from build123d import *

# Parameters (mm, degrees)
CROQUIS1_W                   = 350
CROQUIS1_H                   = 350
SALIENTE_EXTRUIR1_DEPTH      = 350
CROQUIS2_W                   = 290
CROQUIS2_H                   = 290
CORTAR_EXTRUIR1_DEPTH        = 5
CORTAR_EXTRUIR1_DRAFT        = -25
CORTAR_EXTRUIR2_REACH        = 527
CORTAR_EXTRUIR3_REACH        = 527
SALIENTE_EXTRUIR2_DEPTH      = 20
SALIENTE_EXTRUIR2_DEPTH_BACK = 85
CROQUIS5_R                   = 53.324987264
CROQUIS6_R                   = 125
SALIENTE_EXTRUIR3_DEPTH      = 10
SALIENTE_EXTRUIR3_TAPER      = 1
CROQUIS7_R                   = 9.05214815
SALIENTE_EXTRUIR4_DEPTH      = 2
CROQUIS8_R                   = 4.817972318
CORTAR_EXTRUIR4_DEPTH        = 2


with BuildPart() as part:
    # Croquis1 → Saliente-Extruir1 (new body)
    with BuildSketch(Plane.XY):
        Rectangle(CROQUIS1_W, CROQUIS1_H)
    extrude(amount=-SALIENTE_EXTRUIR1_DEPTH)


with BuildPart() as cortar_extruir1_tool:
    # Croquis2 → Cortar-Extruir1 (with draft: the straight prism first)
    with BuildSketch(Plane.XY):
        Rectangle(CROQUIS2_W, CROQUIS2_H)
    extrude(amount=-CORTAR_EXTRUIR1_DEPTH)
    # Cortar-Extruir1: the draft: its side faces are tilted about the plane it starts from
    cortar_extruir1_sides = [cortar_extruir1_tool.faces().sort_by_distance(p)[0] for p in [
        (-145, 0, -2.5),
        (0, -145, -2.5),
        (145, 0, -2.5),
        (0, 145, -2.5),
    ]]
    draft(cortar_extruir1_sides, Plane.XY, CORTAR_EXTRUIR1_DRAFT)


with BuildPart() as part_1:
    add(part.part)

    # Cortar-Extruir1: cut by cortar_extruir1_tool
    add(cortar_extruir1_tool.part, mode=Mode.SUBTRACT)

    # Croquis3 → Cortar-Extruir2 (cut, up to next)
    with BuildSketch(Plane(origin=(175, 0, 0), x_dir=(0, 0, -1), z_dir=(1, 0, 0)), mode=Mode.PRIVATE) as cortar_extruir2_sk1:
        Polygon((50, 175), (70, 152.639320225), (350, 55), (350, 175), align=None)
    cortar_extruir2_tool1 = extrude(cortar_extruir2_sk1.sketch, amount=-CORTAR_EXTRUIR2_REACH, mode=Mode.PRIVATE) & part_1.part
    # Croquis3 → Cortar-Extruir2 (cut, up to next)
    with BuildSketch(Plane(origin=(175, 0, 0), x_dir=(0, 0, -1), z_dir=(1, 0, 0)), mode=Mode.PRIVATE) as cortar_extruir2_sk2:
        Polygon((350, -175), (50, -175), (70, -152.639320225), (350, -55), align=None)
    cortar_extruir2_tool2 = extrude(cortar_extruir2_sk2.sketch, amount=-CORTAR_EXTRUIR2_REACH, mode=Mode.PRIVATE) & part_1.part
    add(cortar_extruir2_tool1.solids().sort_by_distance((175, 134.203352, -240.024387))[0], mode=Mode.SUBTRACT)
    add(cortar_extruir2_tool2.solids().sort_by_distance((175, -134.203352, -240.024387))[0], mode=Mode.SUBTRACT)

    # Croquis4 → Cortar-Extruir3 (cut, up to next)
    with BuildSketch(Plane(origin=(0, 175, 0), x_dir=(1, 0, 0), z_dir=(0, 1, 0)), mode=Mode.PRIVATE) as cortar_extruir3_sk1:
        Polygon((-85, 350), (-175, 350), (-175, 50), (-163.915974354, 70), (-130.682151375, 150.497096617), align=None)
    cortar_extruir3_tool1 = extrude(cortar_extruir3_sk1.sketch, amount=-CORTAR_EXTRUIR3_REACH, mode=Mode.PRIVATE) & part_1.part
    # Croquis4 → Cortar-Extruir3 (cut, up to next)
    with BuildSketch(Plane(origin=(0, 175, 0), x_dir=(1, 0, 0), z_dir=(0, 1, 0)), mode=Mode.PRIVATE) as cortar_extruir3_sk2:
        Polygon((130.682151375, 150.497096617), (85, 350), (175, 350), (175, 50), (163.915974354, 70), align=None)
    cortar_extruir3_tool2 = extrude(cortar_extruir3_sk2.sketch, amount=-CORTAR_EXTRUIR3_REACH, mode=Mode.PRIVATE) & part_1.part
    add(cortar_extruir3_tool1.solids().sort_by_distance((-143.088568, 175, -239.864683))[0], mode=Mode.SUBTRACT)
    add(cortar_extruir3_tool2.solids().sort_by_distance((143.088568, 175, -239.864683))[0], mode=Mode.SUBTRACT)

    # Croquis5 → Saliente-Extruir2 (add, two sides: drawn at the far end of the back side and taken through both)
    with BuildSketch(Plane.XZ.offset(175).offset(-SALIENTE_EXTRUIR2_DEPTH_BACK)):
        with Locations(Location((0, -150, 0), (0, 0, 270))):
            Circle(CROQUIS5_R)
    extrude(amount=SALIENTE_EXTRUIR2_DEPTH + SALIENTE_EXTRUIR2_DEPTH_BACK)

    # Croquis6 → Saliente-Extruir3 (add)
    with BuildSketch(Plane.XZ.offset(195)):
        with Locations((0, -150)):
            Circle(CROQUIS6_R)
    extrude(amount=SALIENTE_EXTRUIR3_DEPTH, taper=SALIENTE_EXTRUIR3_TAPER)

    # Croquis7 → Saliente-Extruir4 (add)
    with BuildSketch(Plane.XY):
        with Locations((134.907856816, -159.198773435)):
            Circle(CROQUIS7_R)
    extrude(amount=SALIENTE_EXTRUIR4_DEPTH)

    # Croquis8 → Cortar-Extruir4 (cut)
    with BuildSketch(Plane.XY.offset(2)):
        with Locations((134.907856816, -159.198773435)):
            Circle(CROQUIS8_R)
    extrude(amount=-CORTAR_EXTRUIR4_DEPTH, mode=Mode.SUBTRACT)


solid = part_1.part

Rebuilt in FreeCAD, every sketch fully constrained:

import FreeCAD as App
import Part
import Sketcher

V = App.Vector
Q = App.Units.Quantity


def faces_at(feature, points):
    """Names of the faces that lie closest to the given points."""
    faces = feature.Shape.Faces
    near = lambda p: min(range(len(faces)), key=lambda i: faces[i].distToShape(Part.Vertex(*p))[0])
    return sorted({f"Face{near(p) + 1}" for p in points})


def add_polygon(sketch, points):
    """Adds a closed chain of lines whose ends are joined by coincident constraints."""
    first, n = sketch.GeometryCount, len(points)
    for a, b in zip(points, points[1:] + points[:1]):
        sketch.addGeometry(Part.LineSegment(App.Vector(*a, 0), App.Vector(*b, 0)), False)
    for i in range(n):
        sketch.addConstraint(Sketcher.Constraint("Coincident", first + i, 2, first + (i + 1) % n, 1))

doc = App.newDocument("Part")
body = doc.addObject("PartDesign::Body", "Body")

# Sketch on XY plane
sketch1 = doc.addObject("Sketcher::SketchObject", "Sketch")
body.addObject(sketch1)
sketch1.AttachmentSupport = (doc.XY_Plane, [""])
sketch1.MapMode = "FlatFace"
add_polygon(sketch1, [(-175, 175), (-175, -175), (175, -175), (175, 175)])  # lines 0-3
sketch1.addConstraint(Sketcher.Constraint("Vertical", 0))
sketch1.addConstraint(Sketcher.Constraint("Horizontal", 1))
sketch1.addConstraint(Sketcher.Constraint("Vertical", 2))
sketch1.addConstraint(Sketcher.Constraint("Horizontal", 3))
sketch1.addConstraint(Sketcher.Constraint("Symmetric", 0, 2, 2, 2, -1, 1))
sketch1.addConstraint(Sketcher.Constraint("Equal", 3, 0))
sketch1.addConstraint(Sketcher.Constraint("DistanceX", 1, 1, 1, 2, Q("350 mm")))
pad1 = doc.addObject("PartDesign::Pad", "Pad")
body.addObject(pad1)
pad1.Profile = sketch1
pad1.Length = 350
pad1.Reversed = True
body2 = doc.addObject("PartDesign::Body", "Body001")

# Sketch on XY plane
sketch2 = doc.addObject("Sketcher::SketchObject", "Sketch001")
body2.addObject(sketch2)
sketch2.AttachmentSupport = (doc.getObject("XY_Plane001"), [""])
sketch2.MapMode = "FlatFace"
add_polygon(sketch2, [(-145, 145), (-145, -145), (145, -145), (145, 145)])  # lines 0-3
sketch2.addConstraint(Sketcher.Constraint("Vertical", 0))
sketch2.addConstraint(Sketcher.Constraint("Horizontal", 1))
sketch2.addConstraint(Sketcher.Constraint("Vertical", 2))
sketch2.addConstraint(Sketcher.Constraint("Horizontal", 3))
sketch2.addConstraint(Sketcher.Constraint("Symmetric", 0, 2, 2, 2, -1, 1))
sketch2.addConstraint(Sketcher.Constraint("Equal", 3, 0))
sketch2.addConstraint(Sketcher.Constraint("DistanceX", 1, 1, 1, 2, Q("290 mm")))
pad2 = doc.addObject("PartDesign::Pad", "Pad001")
body2.addObject(pad2)
pad2.Profile = sketch2
pad2.Length = 5
pad2.Reversed = True
doc.recompute()

draft = doc.addObject("PartDesign::Draft", "Draft")
body2.addObject(draft)
draft.Base = (pad2, faces_at(pad2, [
    (-145, 0, -2.5),
    (0, -145, -2.5),
    (145, 0, -2.5),
    (0, 145, -2.5),
]))
draft.NeutralPlane = (doc.getObject("XY_Plane001"), [""])
draft.Angle = 25
draft.Reversed = True
doc.recompute()

boolean = doc.addObject("PartDesign::Boolean", "Boolean")
body.addObject(boolean)
boolean.Type = "Cut"
boolean.addObjects([body2])

# Sketch on YZ plane
sketch3 = doc.addObject("Sketcher::SketchObject", "Sketch002")
body.addObject(sketch3)
sketch3.AttachmentSupport = (doc.YZ_Plane, [""])
sketch3.MapMode = "FlatFace"
sketch3.AttachmentOffset = App.Placement(V(0, 0, 175), App.Rotation())
add_polygon(sketch3, [(175, -50), (152.63932, -70), (55, -350), (175, -350)])  # lines 0-3
sketch3.addConstraint(Sketcher.Constraint("Horizontal", 2))
sketch3.addConstraint(Sketcher.Constraint("Vertical", 3))
sketch3.addConstraint(Sketcher.Constraint("DistanceX", 2, 1, 2, 2, Q("120 mm")))
sketch3.addConstraint(Sketcher.Constraint("DistanceY", 3, 1, 3, 2, Q("300 mm")))
sketch3.addConstraint(Sketcher.Constraint("Distance", 0, Q("30 mm")))
sketch3.addConstraint(Sketcher.Constraint("DistanceY", 0, 2, -1, 1, Q("70 mm")))
sketch3.addConstraint(Sketcher.Constraint("DistanceX", -1, 1, 1, 2, Q("55 mm")))
sketch3.addConstraint(Sketcher.Constraint("DistanceY", 1, 2, -1, 1, Q("350 mm")))
pocket1 = doc.addObject("PartDesign::Pocket", "Pocket")
body.addObject(pocket1)
pocket1.Profile = sketch3
pocket1.Type = "UpToFirst"

# Sketch on YZ plane
sketch4 = doc.addObject("Sketcher::SketchObject", "Sketch003")
body.addObject(sketch4)
sketch4.AttachmentSupport = (doc.YZ_Plane, [""])
sketch4.MapMode = "FlatFace"
sketch4.AttachmentOffset = App.Placement(V(0, 0, 175), App.Rotation())
add_polygon(sketch4, [(-175, -50), (-175, -350), (-55, -350), (-152.63932, -70)])  # lines 0-3
sketch4.addConstraint(Sketcher.Constraint("Vertical", 0))
sketch4.addConstraint(Sketcher.Constraint("Horizontal", 1))
sketch4.addConstraint(Sketcher.Constraint("DistanceX", 1, 1, 1, 2, Q("120 mm")))
sketch4.addConstraint(Sketcher.Constraint("DistanceY", 0, 2, 0, 1, Q("300 mm")))
sketch4.addConstraint(Sketcher.Constraint("Distance", 3, Q("30 mm")))
sketch4.addConstraint(Sketcher.Constraint("DistanceX", 0, 2, -1, 1, Q("175 mm")))
sketch4.addConstraint(Sketcher.Constraint("DistanceY", 0, 2, -1, 1, Q("350 mm")))
sketch4.addConstraint(Sketcher.Constraint("DistanceY", 2, 2, -1, 1, Q("70 mm")))
pocket2 = doc.addObject("PartDesign::Pocket", "Pocket001")
body.addObject(pocket2)
pocket2.Profile = sketch4
pocket2.Type = "UpToFirst"

# Sketch on XZ plane
sketch5 = doc.addObject("Sketcher::SketchObject", "Sketch004")
body.addObject(sketch5)
sketch5.AttachmentSupport = (doc.XZ_Plane, [""])
sketch5.MapMode = "FlatFace"
sketch5.AttachmentOffset = App.Placement(V(0, 0, -175), App.Rotation())
add_polygon(sketch5, [(-85, -350), (-175, -350), (-175, -50), (-163.915974, -70), (-130.682151, -150.497097)])  # lines 0-4
sketch5.addConstraint(Sketcher.Constraint("Horizontal", 0))
sketch5.addConstraint(Sketcher.Constraint("Vertical", 1))
sketch5.addConstraint(Sketcher.Constraint("DistanceX", 0, 2, 0, 1, Q("90 mm")))
sketch5.addConstraint(Sketcher.Constraint("DistanceY", 1, 1, 1, 2, Q("300 mm")))
sketch5.addConstraint(Sketcher.Constraint("DistanceX", 0, 2, -1, 1, Q("175 mm")))
sketch5.addConstraint(Sketcher.Constraint("DistanceY", 0, 2, -1, 1, Q("350 mm")))
sketch5.addConstraint(Sketcher.Constraint("DistanceY", 2, 2, -1, 1, Q("70 mm")))
sketch5.addConstraint(Sketcher.Constraint("Distance", 3, Q("87.087712 mm")))
sketch5.addConstraint(Sketcher.Constraint("DistanceX", 3, 2, -1, 1, Q("130.682151 mm")))
sketch5.addConstraint(Sketcher.Constraint("Distance", 2, Q("22.866036 mm")))
pocket3 = doc.addObject("PartDesign::Pocket", "Pocket002")
body.addObject(pocket3)
pocket3.Profile = sketch5
pocket3.Length = 350
pocket3.Reversed = True

# Sketch on XZ plane
sketch6 = doc.addObject("Sketcher::SketchObject", "Sketch005")
body.addObject(sketch6)
sketch6.AttachmentSupport = (doc.XZ_Plane, [""])
sketch6.MapMode = "FlatFace"
sketch6.AttachmentOffset = App.Placement(V(0, 0, -175), App.Rotation())
add_polygon(sketch6, [(85, -350), (130.682151, -150.497097), (163.915974, -70), (175, -50), (175, -350)])  # lines 0-4
sketch6.addConstraint(Sketcher.Constraint("Vertical", 3))
sketch6.addConstraint(Sketcher.Constraint("Horizontal", 4))
sketch6.addConstraint(Sketcher.Constraint("DistanceX", 4, 2, 4, 1, Q("90 mm")))
sketch6.addConstraint(Sketcher.Constraint("DistanceY", 3, 2, 3, 1, Q("300 mm")))
sketch6.addConstraint(Sketcher.Constraint("DistanceY", 1, 2, -1, 1, Q("70 mm")))
sketch6.addConstraint(Sketcher.Constraint("DistanceX", -1, 1, 2, 2, Q("175 mm")))
sketch6.addConstraint(Sketcher.Constraint("DistanceY", 2, 2, -1, 1, Q("50 mm")))
sketch6.addConstraint(Sketcher.Constraint("Distance", 1, Q("87.087712 mm")))
sketch6.addConstraint(Sketcher.Constraint("DistanceX", -1, 1, 0, 2, Q("130.682151 mm")))
sketch6.addConstraint(Sketcher.Constraint("Distance", 0, Q("204.666234 mm")))
pocket4 = doc.addObject("PartDesign::Pocket", "Pocket003")
body.addObject(pocket4)
pocket4.Profile = sketch6
pocket4.Length = 350
pocket4.Reversed = True

# Sketch on XZ plane
sketch7 = doc.addObject("Sketcher::SketchObject", "Sketch006")
body.addObject(sketch7)
sketch7.AttachmentSupport = (doc.XZ_Plane, [""])
sketch7.MapMode = "FlatFace"
sketch7.AttachmentOffset = App.Placement(V(0, 0, 175), App.Rotation())
sketch7.addGeometry(Part.Circle(V(0, -150, 0), V(0, 0, 1), 53.324987), False)
sketch7.addConstraint(Sketcher.Constraint("PointOnObject", 0, 3, -2))
sketch7.addConstraint(Sketcher.Constraint("DistanceY", 0, 3, -1, 1, Q("150 mm")))
sketch7.addConstraint(Sketcher.Constraint("Diameter", 0, Q("106.649975 mm")))
pad3 = doc.addObject("PartDesign::Pad", "Pad002")
body.addObject(pad3)
pad3.Profile = sketch7
pad3.Type = "TwoLengths"
pad3.Length = 20
pad3.Length2 = 85

# Sketch on XZ plane
sketch8 = doc.addObject("Sketcher::SketchObject", "Sketch007")
body.addObject(sketch8)
sketch8.AttachmentSupport = (doc.XZ_Plane, [""])
sketch8.MapMode = "FlatFace"
sketch8.AttachmentOffset = App.Placement(V(0, 0, 195), App.Rotation())
sketch8.addGeometry(Part.Circle(V(0, -150, 0), V(0, 0, 1), 125), False)
sketch8.addConstraint(Sketcher.Constraint("PointOnObject", 0, 3, -2))
sketch8.addConstraint(Sketcher.Constraint("Diameter", 0, Q("250 mm")))
sketch8.addConstraint(Sketcher.Constraint("DistanceY", 0, 3, -1, 1, Q("150 mm")))
pad4 = doc.addObject("PartDesign::Pad", "Pad003")
body.addObject(pad4)
pad4.Profile = sketch8
pad4.Length = 10
pad4.TaperAngle = -1

# Sketch on XY plane
sketch9 = doc.addObject("Sketcher::SketchObject", "Sketch008")
body.addObject(sketch9)
sketch9.AttachmentSupport = (doc.XY_Plane, [""])
sketch9.MapMode = "FlatFace"
sketch9.addGeometry(Part.Circle(V(134.907857, -159.198773, 0), V(0, 0, 1), 9.052148), False)
sketch9.addConstraint(Sketcher.Constraint("Diameter", 0, Q("18.104296 mm")))
sketch9.addConstraint(Sketcher.Constraint("DistanceX", -1, 1, 0, 3, Q("134.907857 mm")))
sketch9.addConstraint(Sketcher.Constraint("DistanceY", 0, 3, -1, 1, Q("159.198773 mm")))
pad5 = doc.addObject("PartDesign::Pad", "Pad004")
body.addObject(pad5)
pad5.Profile = sketch9
pad5.Length = 2

# Sketch on XY plane
sketch10 = doc.addObject("Sketcher::SketchObject", "Sketch009")
body.addObject(sketch10)
sketch10.AttachmentSupport = (doc.XY_Plane, [""])
sketch10.MapMode = "FlatFace"
sketch10.AttachmentOffset = App.Placement(V(0, 0, 2), App.Rotation())
sketch10.addGeometry(Part.Circle(V(134.907857, -159.198773, 0), V(0, 0, 1), 4.817972), False)
sketch10.addConstraint(Sketcher.Constraint("Diameter", 0, Q("9.635945 mm")))
sketch10.addConstraint(Sketcher.Constraint("DistanceX", -1, 1, 0, 3, Q("134.907857 mm")))
sketch10.addConstraint(Sketcher.Constraint("DistanceY", 0, 3, -1, 1, Q("159.198773 mm")))
pocket5 = doc.addObject("PartDesign::Pocket", "Pocket004")
body.addObject(pocket5)
pocket5.Profile = sketch10
pocket5.Length = 2

doc.recompute()
